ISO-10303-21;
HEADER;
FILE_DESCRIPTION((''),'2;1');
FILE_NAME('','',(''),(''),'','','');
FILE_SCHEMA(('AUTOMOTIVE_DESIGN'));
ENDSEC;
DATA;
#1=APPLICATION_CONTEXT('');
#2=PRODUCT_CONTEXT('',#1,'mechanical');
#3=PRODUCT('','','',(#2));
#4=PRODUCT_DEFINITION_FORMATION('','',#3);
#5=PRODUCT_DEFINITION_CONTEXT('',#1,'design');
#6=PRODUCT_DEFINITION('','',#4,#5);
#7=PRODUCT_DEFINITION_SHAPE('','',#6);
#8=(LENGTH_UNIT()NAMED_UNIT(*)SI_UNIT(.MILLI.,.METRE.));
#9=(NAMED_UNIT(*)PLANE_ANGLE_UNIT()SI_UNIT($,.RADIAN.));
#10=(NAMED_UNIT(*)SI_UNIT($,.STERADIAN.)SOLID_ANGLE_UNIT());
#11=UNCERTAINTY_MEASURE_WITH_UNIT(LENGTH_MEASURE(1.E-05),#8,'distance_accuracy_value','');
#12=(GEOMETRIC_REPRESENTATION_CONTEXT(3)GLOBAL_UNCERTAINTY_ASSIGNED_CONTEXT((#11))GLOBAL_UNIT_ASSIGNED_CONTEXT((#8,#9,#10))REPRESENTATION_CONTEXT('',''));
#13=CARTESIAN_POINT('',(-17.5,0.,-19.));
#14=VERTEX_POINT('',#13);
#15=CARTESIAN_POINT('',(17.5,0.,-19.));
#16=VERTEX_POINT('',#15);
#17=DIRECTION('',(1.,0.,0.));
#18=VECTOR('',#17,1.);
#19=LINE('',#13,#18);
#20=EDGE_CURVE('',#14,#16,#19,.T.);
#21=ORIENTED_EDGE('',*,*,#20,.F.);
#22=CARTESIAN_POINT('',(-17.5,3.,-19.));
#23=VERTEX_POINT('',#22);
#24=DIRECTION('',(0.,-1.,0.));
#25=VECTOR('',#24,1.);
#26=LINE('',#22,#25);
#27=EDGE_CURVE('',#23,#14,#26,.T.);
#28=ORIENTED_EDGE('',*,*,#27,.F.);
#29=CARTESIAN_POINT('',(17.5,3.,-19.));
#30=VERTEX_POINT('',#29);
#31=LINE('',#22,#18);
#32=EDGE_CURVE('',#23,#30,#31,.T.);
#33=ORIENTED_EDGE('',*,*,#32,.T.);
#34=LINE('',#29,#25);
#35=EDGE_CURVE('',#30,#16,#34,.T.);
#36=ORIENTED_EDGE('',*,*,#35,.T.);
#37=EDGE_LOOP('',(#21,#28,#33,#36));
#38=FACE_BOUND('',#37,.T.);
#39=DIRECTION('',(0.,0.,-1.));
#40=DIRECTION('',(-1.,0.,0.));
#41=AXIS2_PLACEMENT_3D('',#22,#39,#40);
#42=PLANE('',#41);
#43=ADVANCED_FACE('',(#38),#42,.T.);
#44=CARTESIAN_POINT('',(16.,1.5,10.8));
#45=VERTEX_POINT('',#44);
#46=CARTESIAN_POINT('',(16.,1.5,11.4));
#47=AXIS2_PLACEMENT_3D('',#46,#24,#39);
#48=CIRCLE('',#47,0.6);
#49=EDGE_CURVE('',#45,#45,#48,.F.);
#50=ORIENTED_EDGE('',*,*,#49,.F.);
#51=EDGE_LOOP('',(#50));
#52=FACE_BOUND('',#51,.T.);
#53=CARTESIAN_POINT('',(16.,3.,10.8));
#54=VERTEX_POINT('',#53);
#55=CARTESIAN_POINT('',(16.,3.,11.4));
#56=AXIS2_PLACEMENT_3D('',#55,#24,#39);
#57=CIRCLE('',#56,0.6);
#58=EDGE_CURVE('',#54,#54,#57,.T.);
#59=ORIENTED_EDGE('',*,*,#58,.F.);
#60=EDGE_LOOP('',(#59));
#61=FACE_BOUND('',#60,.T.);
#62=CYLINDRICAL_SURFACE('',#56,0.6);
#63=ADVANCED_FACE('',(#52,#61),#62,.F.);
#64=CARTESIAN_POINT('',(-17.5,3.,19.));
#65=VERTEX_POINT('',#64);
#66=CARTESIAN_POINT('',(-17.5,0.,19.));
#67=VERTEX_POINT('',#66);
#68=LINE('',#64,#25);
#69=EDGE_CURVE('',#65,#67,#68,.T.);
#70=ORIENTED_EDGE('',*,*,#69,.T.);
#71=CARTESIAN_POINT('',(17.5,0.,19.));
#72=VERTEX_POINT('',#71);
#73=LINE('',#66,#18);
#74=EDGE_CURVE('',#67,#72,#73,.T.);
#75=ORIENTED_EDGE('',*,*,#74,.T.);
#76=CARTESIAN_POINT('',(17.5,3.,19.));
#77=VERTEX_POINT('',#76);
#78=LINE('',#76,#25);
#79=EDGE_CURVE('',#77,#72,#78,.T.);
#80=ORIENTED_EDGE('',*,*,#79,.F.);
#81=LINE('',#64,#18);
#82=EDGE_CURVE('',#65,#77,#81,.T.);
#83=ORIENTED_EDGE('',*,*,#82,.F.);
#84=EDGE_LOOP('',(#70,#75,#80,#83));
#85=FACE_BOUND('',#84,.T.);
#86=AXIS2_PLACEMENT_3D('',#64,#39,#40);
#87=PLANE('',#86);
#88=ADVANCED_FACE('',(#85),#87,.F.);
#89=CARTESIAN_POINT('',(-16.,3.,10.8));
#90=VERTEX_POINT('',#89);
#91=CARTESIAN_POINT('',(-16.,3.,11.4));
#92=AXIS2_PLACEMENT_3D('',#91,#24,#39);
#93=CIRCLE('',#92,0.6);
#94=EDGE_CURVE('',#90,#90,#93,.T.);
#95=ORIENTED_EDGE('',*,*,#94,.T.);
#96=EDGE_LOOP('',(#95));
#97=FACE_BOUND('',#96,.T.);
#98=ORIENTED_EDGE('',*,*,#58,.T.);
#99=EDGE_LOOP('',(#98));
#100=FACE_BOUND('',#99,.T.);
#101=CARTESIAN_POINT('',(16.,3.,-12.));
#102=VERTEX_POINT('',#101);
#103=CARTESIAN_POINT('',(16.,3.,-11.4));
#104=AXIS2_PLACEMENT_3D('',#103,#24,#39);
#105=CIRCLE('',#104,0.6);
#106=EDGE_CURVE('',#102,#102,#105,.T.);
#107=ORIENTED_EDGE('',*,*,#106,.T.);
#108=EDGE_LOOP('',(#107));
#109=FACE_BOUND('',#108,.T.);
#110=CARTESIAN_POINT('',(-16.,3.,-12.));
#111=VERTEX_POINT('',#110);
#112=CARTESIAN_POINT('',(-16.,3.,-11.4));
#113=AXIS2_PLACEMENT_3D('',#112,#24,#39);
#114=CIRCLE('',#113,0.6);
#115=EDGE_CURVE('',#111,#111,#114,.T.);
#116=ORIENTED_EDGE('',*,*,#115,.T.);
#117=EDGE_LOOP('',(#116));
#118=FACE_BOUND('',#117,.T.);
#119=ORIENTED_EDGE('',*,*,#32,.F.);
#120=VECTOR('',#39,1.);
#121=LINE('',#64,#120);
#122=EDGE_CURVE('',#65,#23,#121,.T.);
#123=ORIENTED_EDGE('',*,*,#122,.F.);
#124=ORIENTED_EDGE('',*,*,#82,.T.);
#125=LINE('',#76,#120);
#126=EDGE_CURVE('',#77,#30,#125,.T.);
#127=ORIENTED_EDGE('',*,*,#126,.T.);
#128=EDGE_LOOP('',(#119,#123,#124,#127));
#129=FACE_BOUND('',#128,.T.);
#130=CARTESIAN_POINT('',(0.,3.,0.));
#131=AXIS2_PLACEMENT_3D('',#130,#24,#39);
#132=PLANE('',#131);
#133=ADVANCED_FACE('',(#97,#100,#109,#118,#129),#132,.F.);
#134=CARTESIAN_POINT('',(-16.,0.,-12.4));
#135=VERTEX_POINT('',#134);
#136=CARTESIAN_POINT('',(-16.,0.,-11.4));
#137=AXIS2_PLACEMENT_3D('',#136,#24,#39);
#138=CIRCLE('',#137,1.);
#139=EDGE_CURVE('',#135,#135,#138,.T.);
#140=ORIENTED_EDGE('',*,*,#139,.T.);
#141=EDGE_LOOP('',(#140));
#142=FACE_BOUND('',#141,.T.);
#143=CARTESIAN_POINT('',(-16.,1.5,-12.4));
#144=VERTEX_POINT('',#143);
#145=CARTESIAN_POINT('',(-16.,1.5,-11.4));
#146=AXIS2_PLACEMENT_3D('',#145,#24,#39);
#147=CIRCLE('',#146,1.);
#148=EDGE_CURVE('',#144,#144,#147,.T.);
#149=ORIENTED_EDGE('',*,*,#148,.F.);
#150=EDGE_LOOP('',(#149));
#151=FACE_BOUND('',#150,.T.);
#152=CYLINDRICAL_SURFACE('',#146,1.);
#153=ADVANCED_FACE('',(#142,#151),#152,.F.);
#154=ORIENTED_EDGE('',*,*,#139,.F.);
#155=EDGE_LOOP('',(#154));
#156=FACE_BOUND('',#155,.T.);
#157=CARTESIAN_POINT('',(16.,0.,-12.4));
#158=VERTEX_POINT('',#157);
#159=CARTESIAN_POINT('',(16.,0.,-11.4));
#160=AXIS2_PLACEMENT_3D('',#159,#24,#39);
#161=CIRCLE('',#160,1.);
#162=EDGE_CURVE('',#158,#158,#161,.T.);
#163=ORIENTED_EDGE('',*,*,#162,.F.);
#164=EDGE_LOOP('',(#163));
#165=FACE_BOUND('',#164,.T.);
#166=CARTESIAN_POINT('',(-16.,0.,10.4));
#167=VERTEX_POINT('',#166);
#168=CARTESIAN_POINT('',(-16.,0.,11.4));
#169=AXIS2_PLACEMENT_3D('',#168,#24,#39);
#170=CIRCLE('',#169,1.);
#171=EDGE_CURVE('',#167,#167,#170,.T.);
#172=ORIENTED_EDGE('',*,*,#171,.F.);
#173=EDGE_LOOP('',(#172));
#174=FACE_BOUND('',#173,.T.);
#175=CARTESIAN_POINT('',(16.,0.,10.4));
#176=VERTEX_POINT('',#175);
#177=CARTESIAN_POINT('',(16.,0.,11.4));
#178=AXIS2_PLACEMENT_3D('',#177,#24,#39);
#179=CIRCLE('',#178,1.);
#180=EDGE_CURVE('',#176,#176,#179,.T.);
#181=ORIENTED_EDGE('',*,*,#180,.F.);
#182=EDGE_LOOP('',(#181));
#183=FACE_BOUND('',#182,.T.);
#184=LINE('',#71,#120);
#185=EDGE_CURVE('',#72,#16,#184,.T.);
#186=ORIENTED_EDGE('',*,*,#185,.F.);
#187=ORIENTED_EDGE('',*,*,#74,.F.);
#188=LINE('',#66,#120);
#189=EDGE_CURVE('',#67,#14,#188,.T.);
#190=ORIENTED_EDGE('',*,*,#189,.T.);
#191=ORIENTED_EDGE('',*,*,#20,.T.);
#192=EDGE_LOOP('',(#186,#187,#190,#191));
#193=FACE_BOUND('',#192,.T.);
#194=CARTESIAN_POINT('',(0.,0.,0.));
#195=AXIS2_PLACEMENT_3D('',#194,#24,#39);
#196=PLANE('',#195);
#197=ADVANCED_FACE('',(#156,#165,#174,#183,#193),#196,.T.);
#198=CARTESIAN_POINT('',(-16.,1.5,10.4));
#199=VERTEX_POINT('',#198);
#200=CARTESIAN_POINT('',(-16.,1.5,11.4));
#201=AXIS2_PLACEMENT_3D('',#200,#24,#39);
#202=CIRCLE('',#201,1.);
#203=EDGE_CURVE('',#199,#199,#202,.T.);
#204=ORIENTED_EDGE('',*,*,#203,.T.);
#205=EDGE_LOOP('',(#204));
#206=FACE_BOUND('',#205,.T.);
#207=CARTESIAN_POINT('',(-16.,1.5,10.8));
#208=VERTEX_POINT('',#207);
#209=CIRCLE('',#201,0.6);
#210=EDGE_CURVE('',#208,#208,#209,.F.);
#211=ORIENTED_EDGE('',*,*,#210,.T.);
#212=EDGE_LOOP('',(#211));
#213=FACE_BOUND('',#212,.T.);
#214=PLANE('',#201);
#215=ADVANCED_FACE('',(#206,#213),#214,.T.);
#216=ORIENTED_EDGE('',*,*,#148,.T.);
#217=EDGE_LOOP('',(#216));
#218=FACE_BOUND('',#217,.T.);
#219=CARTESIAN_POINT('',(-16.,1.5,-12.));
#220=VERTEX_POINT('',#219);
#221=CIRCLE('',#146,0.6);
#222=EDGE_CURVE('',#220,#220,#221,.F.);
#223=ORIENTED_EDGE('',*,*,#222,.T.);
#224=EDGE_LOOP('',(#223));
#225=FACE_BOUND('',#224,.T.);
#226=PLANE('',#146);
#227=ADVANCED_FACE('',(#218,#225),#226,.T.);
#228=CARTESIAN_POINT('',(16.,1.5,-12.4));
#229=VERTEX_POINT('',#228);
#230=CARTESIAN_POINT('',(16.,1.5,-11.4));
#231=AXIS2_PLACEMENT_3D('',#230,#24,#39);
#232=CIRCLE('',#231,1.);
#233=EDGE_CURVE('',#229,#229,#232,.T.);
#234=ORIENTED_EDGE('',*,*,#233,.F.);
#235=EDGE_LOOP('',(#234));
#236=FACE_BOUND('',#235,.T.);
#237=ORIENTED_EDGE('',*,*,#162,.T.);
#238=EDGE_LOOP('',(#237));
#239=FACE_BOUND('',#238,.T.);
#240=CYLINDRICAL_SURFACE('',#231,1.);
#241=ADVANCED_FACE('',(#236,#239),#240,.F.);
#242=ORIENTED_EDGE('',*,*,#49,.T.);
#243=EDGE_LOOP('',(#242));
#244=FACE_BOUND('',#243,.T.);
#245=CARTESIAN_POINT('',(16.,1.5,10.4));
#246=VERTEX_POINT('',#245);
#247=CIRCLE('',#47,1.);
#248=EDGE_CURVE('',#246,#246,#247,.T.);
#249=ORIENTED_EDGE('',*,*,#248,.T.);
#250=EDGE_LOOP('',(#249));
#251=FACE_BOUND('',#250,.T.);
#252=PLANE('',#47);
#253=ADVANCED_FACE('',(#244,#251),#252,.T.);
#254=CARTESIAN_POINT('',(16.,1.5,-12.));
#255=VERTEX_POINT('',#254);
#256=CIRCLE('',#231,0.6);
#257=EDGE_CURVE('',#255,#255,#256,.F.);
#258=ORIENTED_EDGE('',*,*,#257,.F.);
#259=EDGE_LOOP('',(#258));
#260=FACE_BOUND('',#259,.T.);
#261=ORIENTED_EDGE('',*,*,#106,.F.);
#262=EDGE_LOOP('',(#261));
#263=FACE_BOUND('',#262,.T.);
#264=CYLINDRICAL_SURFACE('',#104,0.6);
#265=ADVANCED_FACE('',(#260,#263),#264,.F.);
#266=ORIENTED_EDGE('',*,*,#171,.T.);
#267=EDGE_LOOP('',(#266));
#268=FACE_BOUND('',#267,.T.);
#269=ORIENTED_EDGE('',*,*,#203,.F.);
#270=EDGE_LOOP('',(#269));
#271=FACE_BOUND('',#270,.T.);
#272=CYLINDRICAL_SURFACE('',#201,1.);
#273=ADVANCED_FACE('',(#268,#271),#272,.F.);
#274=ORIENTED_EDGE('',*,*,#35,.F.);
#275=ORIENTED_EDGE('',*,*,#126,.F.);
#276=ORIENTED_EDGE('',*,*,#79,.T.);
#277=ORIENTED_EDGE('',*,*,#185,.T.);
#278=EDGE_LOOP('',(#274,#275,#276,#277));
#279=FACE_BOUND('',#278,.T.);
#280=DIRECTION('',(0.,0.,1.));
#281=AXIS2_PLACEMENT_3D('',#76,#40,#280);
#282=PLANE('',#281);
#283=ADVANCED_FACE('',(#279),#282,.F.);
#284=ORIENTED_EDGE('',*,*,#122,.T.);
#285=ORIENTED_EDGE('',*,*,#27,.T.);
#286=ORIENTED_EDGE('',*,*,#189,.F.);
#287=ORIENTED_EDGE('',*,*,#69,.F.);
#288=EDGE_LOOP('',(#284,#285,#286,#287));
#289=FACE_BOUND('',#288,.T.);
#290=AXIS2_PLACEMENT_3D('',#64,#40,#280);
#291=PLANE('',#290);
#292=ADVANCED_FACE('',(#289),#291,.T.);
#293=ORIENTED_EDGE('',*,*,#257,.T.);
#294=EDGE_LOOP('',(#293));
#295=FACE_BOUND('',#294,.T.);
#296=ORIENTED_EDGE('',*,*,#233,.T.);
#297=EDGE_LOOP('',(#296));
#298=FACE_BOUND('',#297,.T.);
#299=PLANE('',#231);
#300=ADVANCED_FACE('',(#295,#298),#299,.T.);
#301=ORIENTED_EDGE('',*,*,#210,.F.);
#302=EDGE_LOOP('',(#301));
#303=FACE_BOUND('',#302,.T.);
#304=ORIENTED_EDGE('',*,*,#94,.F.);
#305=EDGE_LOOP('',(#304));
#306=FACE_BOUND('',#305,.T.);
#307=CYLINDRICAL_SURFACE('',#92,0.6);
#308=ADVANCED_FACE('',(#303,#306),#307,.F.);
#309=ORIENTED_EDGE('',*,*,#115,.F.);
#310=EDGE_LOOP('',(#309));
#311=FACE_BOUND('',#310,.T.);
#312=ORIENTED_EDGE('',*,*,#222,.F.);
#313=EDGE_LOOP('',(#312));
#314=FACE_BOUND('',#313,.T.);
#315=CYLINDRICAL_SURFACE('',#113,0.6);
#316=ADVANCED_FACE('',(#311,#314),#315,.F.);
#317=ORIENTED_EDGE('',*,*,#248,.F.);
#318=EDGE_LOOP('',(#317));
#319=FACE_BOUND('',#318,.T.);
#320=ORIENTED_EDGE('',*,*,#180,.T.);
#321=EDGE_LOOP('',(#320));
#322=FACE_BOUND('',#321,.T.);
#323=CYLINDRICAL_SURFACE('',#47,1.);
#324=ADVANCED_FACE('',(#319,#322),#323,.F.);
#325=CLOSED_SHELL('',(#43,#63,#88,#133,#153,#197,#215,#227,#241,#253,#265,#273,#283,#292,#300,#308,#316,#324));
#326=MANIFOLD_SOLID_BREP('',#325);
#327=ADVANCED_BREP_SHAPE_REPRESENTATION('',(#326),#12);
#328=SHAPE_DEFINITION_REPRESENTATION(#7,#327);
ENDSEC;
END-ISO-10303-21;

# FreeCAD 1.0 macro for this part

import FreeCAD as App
import Part
import Sketcher

V = App.Vector

doc = App.newDocument("Part")
body = doc.addObject("PartDesign::Body", "Body")

# Sketch on XZ plane
sketch1 = doc.addObject("Sketcher::SketchObject", "Sketch")
body.addObject(sketch1)
sketch1.AttachmentSupport = (doc.XZ_Plane, [""])
sketch1.MapMode = "FlatFace"
sketch1.addGeometry([
    Part.LineSegment(V(-17.5, -19, 0), V(-17.5, 19, 0)),
    Part.LineSegment(V(-17.5, 19, 0), V(17.5, 19, 0)),
    Part.LineSegment(V(17.5, 19, 0), V(17.5, -19, 0)),
    Part.LineSegment(V(17.5, -19, 0), V(-17.5, -19, 0)),
], False)
sketch1.addConstraint([
    Sketcher.Constraint("Coincident", 0, 2, 1, 1),
    Sketcher.Constraint("Coincident", 1, 2, 2, 1),
    Sketcher.Constraint("Coincident", 2, 2, 3, 1),
    Sketcher.Constraint("Coincident", 3, 2, 0, 1),
    Sketcher.Constraint("Vertical", 0),
    Sketcher.Constraint("Horizontal", 1),
    Sketcher.Constraint("Vertical", 2),
    Sketcher.Constraint("Horizontal", 3),
    Sketcher.Constraint("Symmetric", 0, 2, 2, 2, -1, 1),
    Sketcher.Constraint("DistanceX", 1, 1, 1, 2, 35.0),
    Sketcher.Constraint("DistanceY", 0, 1, 0, 2, 38.0),
])
pad1 = doc.addObject("PartDesign::Pad", "Pad")
body.addObject(pad1)
pad1.Profile = sketch1
pad1.Length = 3
pad1.Reversed = True

# Sketch on XZ plane
sketch2 = doc.addObject("Sketcher::SketchObject", "Sketch001")
body.addObject(sketch2)
sketch2.AttachmentSupport = (doc.XZ_Plane, [""])
sketch2.MapMode = "FlatFace"
sketch2.addGeometry([
    Part.Circle(V(16, -11.4, 0), V(0, 0, 1), 0.6),
    Part.Circle(V(16, 11.4, 0), V(0, 0, 1), 0.6),
    Part.Circle(V(-16, 11.4, 0), V(0, 0, 1), 0.6),
    Part.Circle(V(-16, -11.4, 0), V(0, 0, 1), 0.6),
], False)
sketch2.addConstraint([
    Sketcher.Constraint("Equal", 0, 1),
    Sketcher.Constraint("Equal", 1, 2),
    Sketcher.Constraint("Equal", 2, 3),
    Sketcher.Constraint("Symmetric", 0, 3, 2, 3, -1, 1),
    Sketcher.Constraint("Symmetric", 1, 3, 3, 3, -1, 1),
    Sketcher.Constraint("Symmetric", 1, 3, 2, 3, -2),
    Sketcher.Constraint("Diameter", 0, 1.2),
    Sketcher.Constraint("DistanceX", -1, 1, 0, 3, 16.0),
    Sketcher.Constraint("DistanceY", 0, 3, -1, 1, 11.4),
])
pocket1 = doc.addObject("PartDesign::Pocket", "Pocket")
body.addObject(pocket1)
pocket1.Profile = sketch2
pocket1.Type = "ThroughAll"

# Sketch on XZ plane
sketch3 = doc.addObject("Sketcher::SketchObject", "Sketch002")
body.addObject(sketch3)
sketch3.AttachmentSupport = (doc.XZ_Plane, [""])
sketch3.MapMode = "FlatFace"
sketch3.addGeometry([
    Part.Circle(V(16, -11.4, 0), V(0, 0, 1), 1),
    Part.Circle(V(16, 11.4, 0), V(0, 0, 1), 1),
    Part.Circle(V(-16, 11.4, 0), V(0, 0, 1), 1),
    Part.Circle(V(-16, -11.4, 0), V(0, 0, 1), 1),
], False)
sketch3.addConstraint([
    Sketcher.Constraint("Equal", 0, 1),
    Sketcher.Constraint("Equal", 1, 2),
    Sketcher.Constraint("Equal", 2, 3),
    Sketcher.Constraint("Symmetric", 0, 3, 2, 3, -1, 1),
    Sketcher.Constraint("Symmetric", 1, 3, 3, 3, -1, 1),
    Sketcher.Constraint("Symmetric", 1, 3, 2, 3, -2),
    Sketcher.Constraint("Diameter", 0, 2.0),
    Sketcher.Constraint("DistanceX", -1, 1, 0, 3, 16.0),
    Sketcher.Constraint("DistanceY", 0, 3, -1, 1, 11.4),
])
pocket2 = doc.addObject("PartDesign::Pocket", "Pocket001")
body.addObject(pocket2)
pocket2.Profile = sketch3
pocket2.Length = 1.5

doc.recompute()
